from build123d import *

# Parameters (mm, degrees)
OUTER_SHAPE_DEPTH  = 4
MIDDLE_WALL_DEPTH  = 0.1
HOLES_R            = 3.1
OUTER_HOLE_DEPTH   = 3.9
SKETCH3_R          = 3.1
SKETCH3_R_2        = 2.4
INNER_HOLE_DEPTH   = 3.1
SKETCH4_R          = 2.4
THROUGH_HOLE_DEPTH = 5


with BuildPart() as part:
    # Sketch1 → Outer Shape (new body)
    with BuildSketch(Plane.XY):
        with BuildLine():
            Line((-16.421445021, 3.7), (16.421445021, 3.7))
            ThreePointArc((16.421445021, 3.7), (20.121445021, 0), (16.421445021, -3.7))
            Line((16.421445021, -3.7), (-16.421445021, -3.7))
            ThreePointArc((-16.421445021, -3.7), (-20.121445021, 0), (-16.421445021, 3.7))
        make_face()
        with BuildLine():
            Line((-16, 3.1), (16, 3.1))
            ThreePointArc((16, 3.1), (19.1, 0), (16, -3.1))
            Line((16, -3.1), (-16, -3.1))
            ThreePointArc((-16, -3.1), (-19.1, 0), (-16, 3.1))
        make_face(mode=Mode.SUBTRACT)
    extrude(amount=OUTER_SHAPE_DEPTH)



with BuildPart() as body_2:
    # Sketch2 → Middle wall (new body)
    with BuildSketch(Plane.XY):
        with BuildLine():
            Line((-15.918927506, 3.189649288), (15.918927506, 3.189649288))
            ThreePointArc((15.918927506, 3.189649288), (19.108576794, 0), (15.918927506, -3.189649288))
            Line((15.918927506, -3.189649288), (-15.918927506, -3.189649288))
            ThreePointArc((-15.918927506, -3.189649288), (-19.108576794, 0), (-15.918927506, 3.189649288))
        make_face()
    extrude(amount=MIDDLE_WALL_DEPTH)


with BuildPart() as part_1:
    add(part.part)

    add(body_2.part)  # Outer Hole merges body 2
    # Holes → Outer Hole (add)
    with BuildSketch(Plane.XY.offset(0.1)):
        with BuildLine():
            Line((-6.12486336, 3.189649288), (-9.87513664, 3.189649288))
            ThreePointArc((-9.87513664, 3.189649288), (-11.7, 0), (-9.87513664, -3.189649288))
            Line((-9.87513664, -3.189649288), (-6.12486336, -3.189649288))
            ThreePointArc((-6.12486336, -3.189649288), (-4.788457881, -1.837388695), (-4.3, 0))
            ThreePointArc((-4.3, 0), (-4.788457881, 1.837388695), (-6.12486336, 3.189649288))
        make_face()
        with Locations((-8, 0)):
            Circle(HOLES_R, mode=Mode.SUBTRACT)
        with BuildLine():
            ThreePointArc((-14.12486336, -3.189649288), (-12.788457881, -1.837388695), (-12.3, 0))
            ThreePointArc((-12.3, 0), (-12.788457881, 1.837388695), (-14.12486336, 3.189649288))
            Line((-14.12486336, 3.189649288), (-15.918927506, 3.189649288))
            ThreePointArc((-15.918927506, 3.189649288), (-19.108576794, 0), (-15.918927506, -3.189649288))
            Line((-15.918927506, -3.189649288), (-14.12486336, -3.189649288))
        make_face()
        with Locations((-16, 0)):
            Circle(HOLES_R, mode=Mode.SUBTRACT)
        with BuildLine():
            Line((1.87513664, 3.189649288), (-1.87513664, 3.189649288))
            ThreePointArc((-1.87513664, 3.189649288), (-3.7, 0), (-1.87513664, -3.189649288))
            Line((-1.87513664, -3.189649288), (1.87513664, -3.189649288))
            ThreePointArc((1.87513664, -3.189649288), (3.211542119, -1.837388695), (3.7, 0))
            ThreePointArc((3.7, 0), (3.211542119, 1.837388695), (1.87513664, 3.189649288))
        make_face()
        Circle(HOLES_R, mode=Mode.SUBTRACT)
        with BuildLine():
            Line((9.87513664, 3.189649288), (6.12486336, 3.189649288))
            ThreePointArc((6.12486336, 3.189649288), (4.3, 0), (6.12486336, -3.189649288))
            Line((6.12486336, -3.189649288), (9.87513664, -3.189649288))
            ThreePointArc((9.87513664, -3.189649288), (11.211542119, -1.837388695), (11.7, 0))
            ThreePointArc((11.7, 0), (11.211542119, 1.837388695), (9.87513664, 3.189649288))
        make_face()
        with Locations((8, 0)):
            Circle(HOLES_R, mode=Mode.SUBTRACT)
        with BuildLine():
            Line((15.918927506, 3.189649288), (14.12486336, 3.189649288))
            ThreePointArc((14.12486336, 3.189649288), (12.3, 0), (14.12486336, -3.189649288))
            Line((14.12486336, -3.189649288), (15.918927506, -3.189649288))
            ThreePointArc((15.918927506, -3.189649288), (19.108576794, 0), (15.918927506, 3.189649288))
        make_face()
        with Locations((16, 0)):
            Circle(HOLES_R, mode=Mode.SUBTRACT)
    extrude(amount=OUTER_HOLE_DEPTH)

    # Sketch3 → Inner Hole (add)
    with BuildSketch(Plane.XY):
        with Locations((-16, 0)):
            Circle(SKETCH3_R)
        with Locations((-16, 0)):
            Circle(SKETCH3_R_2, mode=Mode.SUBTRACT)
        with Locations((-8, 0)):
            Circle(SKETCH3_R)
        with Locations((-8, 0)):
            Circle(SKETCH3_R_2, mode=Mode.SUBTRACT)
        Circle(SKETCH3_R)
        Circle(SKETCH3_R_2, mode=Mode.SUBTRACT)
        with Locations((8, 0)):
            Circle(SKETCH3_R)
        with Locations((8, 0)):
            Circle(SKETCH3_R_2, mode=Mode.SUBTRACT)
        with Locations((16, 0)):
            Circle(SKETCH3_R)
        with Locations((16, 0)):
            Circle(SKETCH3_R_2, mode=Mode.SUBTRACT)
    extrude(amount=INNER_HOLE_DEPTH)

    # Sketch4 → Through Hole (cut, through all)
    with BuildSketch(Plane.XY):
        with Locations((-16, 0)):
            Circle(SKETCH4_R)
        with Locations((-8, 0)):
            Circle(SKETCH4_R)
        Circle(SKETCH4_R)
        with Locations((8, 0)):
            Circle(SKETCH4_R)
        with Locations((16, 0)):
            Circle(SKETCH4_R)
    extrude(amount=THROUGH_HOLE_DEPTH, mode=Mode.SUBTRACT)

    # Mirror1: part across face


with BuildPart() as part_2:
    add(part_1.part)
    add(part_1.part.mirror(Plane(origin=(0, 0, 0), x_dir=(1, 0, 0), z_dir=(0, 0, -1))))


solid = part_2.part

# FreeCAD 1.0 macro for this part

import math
import FreeCAD as App
import Part
import Sketcher
Q = App.Units.Quantity

doc = App.newDocument("Part")
body = doc.addObject("PartDesign::Body", "Body")

sketch1 = body.newObject("Sketcher::SketchObject", "Sketch")
sketch1.AttachmentSupport = (doc.getObject("XY_Plane"), [""])
sketch1.MapMode = "FlatFace"
sketch1.addGeometry([
    Part.LineSegment(App.Vector(16.4, 3.7, 0), App.Vector(-16.4, 3.7, 0)),
    Part.ArcOfCircle(Part.Circle(App.Vector(-16.4, 0, 0), App.Vector(0, 0, 1), 3.7), math.radians(90), math.radians(270)),
    Part.LineSegment(App.Vector(-16.4, -3.7, 0), App.Vector(16.4, -3.7, 0)),
    Part.ArcOfCircle(Part.Circle(App.Vector(16.4, 0, 0), App.Vector(0, 0, 1), 3.7), math.radians(-90), math.radians(90)),
    Part.LineSegment(App.Vector(-16, 3.1, 0), App.Vector(16, 3.1, 0)),
    Part.ArcOfCircle(Part.Circle(App.Vector(16, 0, 0), App.Vector(0, 0, 1), 3.1), math.radians(-90), math.radians(90)),
    Part.LineSegment(App.Vector(16, -3.1, 0), App.Vector(-16, -3.1, 0)),
    Part.ArcOfCircle(Part.Circle(App.Vector(-16, 0, 0), App.Vector(0, 0, 1), 3.1), math.radians(90), math.radians(270)),
], False)
sketch1.addConstraint([
    Sketcher.Constraint("Tangent", 0, 2, 1, 1),
    Sketcher.Constraint("Tangent", 1, 2, 2, 1),
    Sketcher.Constraint("Tangent", 2, 2, 3, 1),
    Sketcher.Constraint("Tangent", 3, 2, 0, 1),
    Sketcher.Constraint("Tangent", 4, 2, 5, 2),
    Sketcher.Constraint("Tangent", 5, 1, 6, 1),
    Sketcher.Constraint("Tangent", 6, 2, 7, 2),
    Sketcher.Constraint("Tangent", 7, 1, 4, 1),
    Sketcher.Constraint("Horizontal", 0),
    Sketcher.Constraint("Horizontal", 2),
    Sketcher.Constraint("Horizontal", 4),
    Sketcher.Constraint("Horizontal", 6),
    Sketcher.Constraint("Symmetric", 1, 3, 3, 3, -1, 1),
    Sketcher.Constraint("Symmetric", 5, 3, 7, 3, -1, 1),
    Sketcher.Constraint("Radius", 1, Q("3.7 mm")),
    Sketcher.Constraint("Radius", 5, Q("3.1 mm")),
    Sketcher.Constraint("DistanceX", 4, 1, 4, 2, Q("32 mm")),
    Sketcher.Constraint("DistanceX", 0, 2, 0, 1, Q("32.84289 mm")),
])
pad1 = body.newObject("PartDesign::Pad", "Pad")
pad1.Profile = sketch1
pad1.Length = 4
body2 = doc.addObject("PartDesign::Body", "Body001")

sketch2 = body2.newObject("Sketcher::SketchObject", "Sketch001")
sketch2.AttachmentSupport = (doc.getObject("XY_Plane001"), [""])
sketch2.MapMode = "FlatFace"
sketch2.addGeometry([
    Part.LineSegment(App.Vector(15.9, 3.2, 0), App.Vector(-15.9, 3.2, 0)),
    Part.ArcOfCircle(Part.Circle(App.Vector(-15.9, 0, 0), App.Vector(0, 0, 1), 3.2), math.radians(90), math.radians(270)),
    Part.LineSegment(App.Vector(-15.9, -3.2, 0), App.Vector(15.9, -3.2, 0)),
    Part.ArcOfCircle(Part.Circle(App.Vector(15.9, 0, 0), App.Vector(0, 0, 1), 3.2), math.radians(-90), math.radians(90)),
], False)
sketch2.addConstraint([
    Sketcher.Constraint("Tangent", 0, 2, 1, 1),
    Sketcher.Constraint("Tangent", 1, 2, 2, 1),
    Sketcher.Constraint("Tangent", 2, 2, 3, 1),
    Sketcher.Constraint("Tangent", 3, 2, 0, 1),
    Sketcher.Constraint("Horizontal", 0),
    Sketcher.Constraint("Horizontal", 2),
    Sketcher.Constraint("Symmetric", 1, 3, 3, 3, -1, 1),
    Sketcher.Constraint("Radius", 1, Q("3.189649 mm")),
    Sketcher.Constraint("DistanceX", 0, 2, 0, 1, Q("31.837855 mm")),
])
pad2 = body2.newObject("PartDesign::Pad", "Pad001")
pad2.Profile = sketch2
pad2.Length = 0.1
doc.recompute()

boolean = body.newObject("PartDesign::Boolean", "Boolean")
boolean.Type = "Fuse"
boolean.addObjects([body2])

sketch3 = body.newObject("Sketcher::SketchObject", "Sketch002")
sketch3.AttachmentSupport = (doc.getObject("XY_Plane"), [""])
sketch3.MapMode = "FlatFace"
sketch3.AttachmentOffset = App.Placement(App.Vector(0, 0, 0.1), App.Rotation())
sketch3.addGeometry([
    Part.LineSegment(App.Vector(-6.1, 3.2, 0), App.Vector(-9.9, 3.2, 0)),
    Part.ArcOfCircle(Part.Circle(App.Vector(-8, 0, 0), App.Vector(0, 0, 1), 3.7), math.radians(120), math.radians(240)),
    Part.LineSegment(App.Vector(-9.9, -3.2, 0), App.Vector(-6.1, -3.2, 0)),
    Part.ArcOfCircle(Part.Circle(App.Vector(-8, 0, 0), App.Vector(0, 0, 1), 3.7), math.radians(-60), math.radians(0)),
    Part.ArcOfCircle(Part.Circle(App.Vector(-8, 0, 0), App.Vector(0, 0, 1), 3.7), math.radians(0), math.radians(60)),
    Part.Circle(App.Vector(-8, 0, 0), App.Vector(0, 0, 1), 3.1),
    Part.ArcOfCircle(Part.Circle(App.Vector(-16, 0, 0), App.Vector(0, 0, 1), 3.7), math.radians(-60), math.radians(0)),
    Part.ArcOfCircle(Part.Circle(App.Vector(-16, 0, 0), App.Vector(0, 0, 1), 3.7), math.radians(0), math.radians(60)),
    Part.LineSegment(App.Vector(-14.1, 3.2, 0), App.Vector(-15.9, 3.2, 0)),
    Part.ArcOfCircle(Part.Circle(App.Vector(-15.9, 0, 0), App.Vector(0, 0, 1), 3.2), math.radians(90), math.radians(270)),
    Part.LineSegment(App.Vector(-15.9, -3.2, 0), App.Vector(-14.1, -3.2, 0)),
    Part.Circle(App.Vector(-16, 0, 0), App.Vector(0, 0, 1), 3.1),
    Part.LineSegment(App.Vector(1.9, 3.2, 0), App.Vector(-1.9, 3.2, 0)),
    Part.ArcOfCircle(Part.Circle(App.Vector(0, 0, 0), App.Vector(0, 0, 1), 3.7), math.radians(120), math.radians(240)),
    Part.LineSegment(App.Vector(-1.9, -3.2, 0), App.Vector(1.9, -3.2, 0)),
    Part.ArcOfCircle(Part.Circle(App.Vector(0, 0, 0), App.Vector(0, 0, 1), 3.7), math.radians(-60), math.radians(0)),
    Part.ArcOfCircle(Part.Circle(App.Vector(0, 0, 0), App.Vector(0, 0, 1), 3.7), math.radians(0), math.radians(60)),
    Part.Circle(App.Vector(0, 0, 0), App.Vector(0, 0, 1), 3.1),
    Part.LineSegment(App.Vector(9.9, 3.2, 0), App.Vector(6.1, 3.2, 0)),
    Part.ArcOfCircle(Part.Circle(App.Vector(8, 0, 0), App.Vector(0, 0, 1), 3.7), math.radians(120), math.radians(240)),
    Part.LineSegment(App.Vector(6.1, -3.2, 0), App.Vector(9.9, -3.2, 0)),
    Part.ArcOfCircle(Part.Circle(App.Vector(8, 0, 0), App.Vector(0, 0, 1), 3.7), math.radians(-60), math.radians(0)),
    Part.ArcOfCircle(Part.Circle(App.Vector(8, 0, 0), App.Vector(0, 0, 1), 3.7), math.radians(0), math.radians(60)),
    Part.Circle(App.Vector(8, 0, 0), App.Vector(0, 0, 1), 3.1),
    Part.LineSegment(App.Vector(15.9, 3.2, 0), App.Vector(14.1, 3.2, 0)),
    Part.ArcOfCircle(Part.Circle(App.Vector(16, 0, 0), App.Vector(0, 0, 1), 3.7), math.radians(120), math.radians(240)),
    Part.LineSegment(App.Vector(14.1, -3.2, 0), App.Vector(15.9, -3.2, 0)),
    Part.ArcOfCircle(Part.Circle(App.Vector(15.9, 0, 0), App.Vector(0, 0, 1), 3.2), math.radians(-90), math.radians(90)),
    Part.Circle(App.Vector(16, 0, 0), App.Vector(0, 0, 1), 3.1),
], False)
sketch3.addConstraint([
    Sketcher.Constraint("Coincident", 0, 2, 1, 1),
    Sketcher.Constraint("Coincident", 1, 2, 2, 1),
    Sketcher.Constraint("Coincident", 2, 2, 3, 1),
    Sketcher.Constraint("Tangent", 3, 2, 4, 1),
    Sketcher.Constraint("Coincident", 4, 2, 0, 1),
    Sketcher.Constraint("Tangent", 6, 2, 7, 1),
    Sketcher.Constraint("Coincident", 7, 2, 8, 1),
    Sketcher.Constraint("Tangent", 8, 2, 9, 1),
    Sketcher.Constraint("Tangent", 9, 2, 10, 1),
    Sketcher.Constraint("Coincident", 10, 2, 6, 1),
    Sketcher.Constraint("Coincident", 12, 2, 13, 1),
    Sketcher.Constraint("Coincident", 13, 2, 14, 1),
    Sketcher.Constraint("Coincident", 14, 2, 15, 1),
    Sketcher.Constraint("Tangent", 15, 2, 16, 1),
    Sketcher.Constraint("Coincident", 16, 2, 12, 1),
    Sketcher.Constraint("Coincident", 18, 2, 19, 1),
    Sketcher.Constraint("Coincident", 19, 2, 20, 1),
    Sketcher.Constraint("Coincident", 20, 2, 21, 1),
    Sketcher.Constraint("Tangent", 21, 2, 22, 1),
    Sketcher.Constraint("Coincident", 22, 2, 18, 1),
    Sketcher.Constraint("Coincident", 24, 2, 25, 1),
    Sketcher.Constraint("Coincident", 25, 2, 26, 1),
    Sketcher.Constraint("Tangent", 26, 2, 27, 1),
    Sketcher.Constraint("Tangent", 27, 2, 24, 1),
    Sketcher.Constraint("Horizontal", 0),
    Sketcher.Constraint("Horizontal", 2),
    Sketcher.Constraint("Horizontal", 8),
    Sketcher.Constraint("Horizontal", 10),
    Sketcher.Constraint("Horizontal", 12),
    Sketcher.Constraint("Horizontal", 14),
    Sketcher.Constraint("Horizontal", 18),
    Sketcher.Constraint("Horizontal", 20),
    Sketcher.Constraint("Horizontal", 24),
    Sketcher.Constraint("Horizontal", 26),
    Sketcher.Constraint("Coincident", 13, 3, -1, 1),
    Sketcher.Constraint("Coincident", 15, 3, -1, 1),
    Sketcher.Constraint("Coincident", 17, 3, -1, 1),
    Sketcher.Constraint("Coincident", 3, 3, 1, 3),
    Sketcher.Constraint("Coincident", 5, 3, 1, 3),
    Sketcher.Constraint("Coincident", 11, 3, 6, 3),
    Sketcher.Constraint("Coincident", 21, 3, 19, 3),
    Sketcher.Constraint("Coincident", 23, 3, 19, 3),
    Sketcher.Constraint("Coincident", 28, 3, 25, 3),
    Sketcher.Constraint("Equal", 1, 3),
    Sketcher.Constraint("Equal", 3, 4),
    Sketcher.Constraint("Equal", 4, 6),
    Sketcher.Constraint("Equal", 6, 7),
    Sketcher.Constraint("Equal", 5, 11),
    Sketcher.Constraint("Equal", 7, 13),
    Sketcher.Constraint("Equal", 13, 15),
    Sketcher.Constraint("Equal", 15, 16),
    Sketcher.Constraint("Equal", 11, 17),
    Sketcher.Constraint("Equal", 16, 19),
    Sketcher.Constraint("Equal", 19, 21),
    Sketcher.Constraint("Equal", 21, 22),
    Sketcher.Constraint("Equal", 17, 23),
    Sketcher.Constraint("Equal", 22, 25),
    Sketcher.Constraint("Equal", 9, 27),
    Sketcher.Constraint("Equal", 23, 28),
    Sketcher.Constraint("Symmetric", 1, 3, 19, 3, -1, 1),
    Sketcher.Constraint("Symmetric", 6, 3, 25, 3, -1, 1),
    Sketcher.Constraint("Symmetric", 9, 3, 27, 3, -1, 1),
    Sketcher.Constraint("Symmetric", 4, 2, 18, 2, -2),
    Sketcher.Constraint("Symmetric", 7, 2, 24, 2, -2),
    Sketcher.Constraint("PointOnObject", 3, 2, -1),
    Sketcher.Constraint("PointOnObject", 6, 2, -1),
    Sketcher.Constraint("PointOnObject", 15, 2, -1),
    Sketcher.Constraint("PointOnObject", 21, 2, -1),
    Sketcher.Constraint("Horizontal", 4, 2, 7, 2),
    Sketcher.Constraint("Horizontal", 2, 2, 9, 2),
    Sketcher.Constraint("Horizontal", 8, 2, 12, 2),
    Sketcher.Constraint("Horizontal", 10, 2, 13, 2),
    Sketcher.Constraint("Horizontal", 14, 2, 19, 2),
    Sketcher.Constraint("Diameter", 5, Q("6.2 mm")),
    Sketcher.Constraint("Radius", 1, Q("3.7 mm")),
    Sketcher.Constraint("DistanceX", 1, 3, -1, 1, Q("8 mm")),
    Sketcher.Constraint("DistanceX", 6, 3, -1, 1, Q("16 mm")),
    Sketcher.Constraint("Radius", 9, Q("3.189649 mm")),
    Sketcher.Constraint("DistanceX", 8, 2, 8, 1, Q("1.794064 mm")),
])
pad3 = body.newObject("PartDesign::Pad", "Pad002")
pad3.Profile = sketch3
pad3.Length = 3.9

sketch4 = body.newObject("Sketcher::SketchObject", "Sketch003")
sketch4.AttachmentSupport = (doc.getObject("XY_Plane"), [""])
sketch4.MapMode = "FlatFace"
sketch4.addGeometry([
    Part.Circle(App.Vector(-16, 0, 0), App.Vector(0, 0, 1), 3.1),
    Part.Circle(App.Vector(-16, 0, 0), App.Vector(0, 0, 1), 2.4),
    Part.Circle(App.Vector(-8, 0, 0), App.Vector(0, 0, 1), 3.1),
    Part.Circle(App.Vector(-8, 0, 0), App.Vector(0, 0, 1), 2.4),
    Part.Circle(App.Vector(0, 0, 0), App.Vector(0, 0, 1), 3.1),
    Part.Circle(App.Vector(0, 0, 0), App.Vector(0, 0, 1), 2.4),
    Part.Circle(App.Vector(8, 0, 0), App.Vector(0, 0, 1), 3.1),
    Part.Circle(App.Vector(8, 0, 0), App.Vector(0, 0, 1), 2.4),
    Part.Circle(App.Vector(16, 0, 0), App.Vector(0, 0, 1), 3.1),
    Part.Circle(App.Vector(16, 0, 0), App.Vector(0, 0, 1), 2.4),
], False)
sketch4.addConstraint([
    Sketcher.Constraint("Coincident", 4, 3, -1, 1),
    Sketcher.Constraint("Coincident", 5, 3, -1, 1),
    Sketcher.Constraint("Coincident", 1, 3, 0, 3),
    Sketcher.Constraint("Coincident", 3, 3, 2, 3),
    Sketcher.Constraint("Coincident", 7, 3, 6, 3),
    Sketcher.Constraint("Coincident", 9, 3, 8, 3),
    Sketcher.Constraint("Equal", 0, 2),
    Sketcher.Constraint("Equal", 1, 3),
    Sketcher.Constraint("Equal", 2, 4),
    Sketcher.Constraint("Equal", 3, 5),
    Sketcher.Constraint("Equal", 4, 6),
    Sketcher.Constraint("Equal", 5, 7),
    Sketcher.Constraint("Equal", 6, 8),
    Sketcher.Constraint("Equal", 7, 9),
    Sketcher.Constraint("Symmetric", 2, 3, 6, 3, -1, 1),
    Sketcher.Constraint("Symmetric", 0, 3, 8, 3, -1, 1),
    Sketcher.Constraint("PointOnObject", 0, 3, -1),
    Sketcher.Constraint("PointOnObject", 2, 3, -1),
    Sketcher.Constraint("Diameter", 0, Q("6.2 mm")),
    Sketcher.Constraint("Diameter", 1, Q("4.8 mm")),
    Sketcher.Constraint("DistanceX", 0, 3, -1, 1, Q("16 mm")),
    Sketcher.Constraint("DistanceX", 2, 3, -1, 1, Q("8 mm")),
])
pad4 = body.newObject("PartDesign::Pad", "Pad003")
pad4.Profile = sketch4
pad4.Length = 3.1

sketch5 = body.newObject("Sketcher::SketchObject", "Sketch004")
sketch5.AttachmentSupport = (doc.getObject("XY_Plane"), [""])
sketch5.MapMode = "FlatFace"
sketch5.addGeometry([
    Part.Circle(App.Vector(-16, 0, 0), App.Vector(0, 0, 1), 2.4),
    Part.Circle(App.Vector(-8, 0, 0), App.Vector(0, 0, 1), 2.4),
    Part.Circle(App.Vector(0, 0, 0), App.Vector(0, 0, 1), 2.4),
    Part.Circle(App.Vector(8, 0, 0), App.Vector(0, 0, 1), 2.4),
    Part.Circle(App.Vector(16, 0, 0), App.Vector(0, 0, 1), 2.4),
], False)
sketch5.addConstraint([
    Sketcher.Constraint("Coincident", 2, 3, -1, 1),
    Sketcher.Constraint("Equal", 0, 1),
    Sketcher.Constraint("Equal", 1, 2),
    Sketcher.Constraint("Equal", 2, 3),
    Sketcher.Constraint("Equal", 3, 4),
    Sketcher.Constraint("Symmetric", 1, 3, 3, 3, -1, 1),
    Sketcher.Constraint("Symmetric", 0, 3, 4, 3, -1, 1),
    Sketcher.Constraint("PointOnObject", 0, 3, -1),
    Sketcher.Constraint("PointOnObject", 1, 3, -1),
    Sketcher.Constraint("Diameter", 0, Q("4.8 mm")),
    Sketcher.Constraint("DistanceX", 0, 3, -1, 1, Q("16 mm")),
    Sketcher.Constraint("DistanceX", 1, 3, -1, 1, Q("8 mm")),
])
pocket1 = body.newObject("PartDesign::Pocket", "Pocket")
pocket1.Profile = sketch5
pocket1.Type = "ThroughAll"
pocket1.Reversed = True
body3 = doc.addObject("PartDesign::Body", "Body002")
doc.recompute()

body3.BaseFeature = body
doc.recompute()

mirroring = doc.addObject("Part::Mirroring", "Mirroring")
mirroring.Source = body
mirroring.Base = App.Vector(0, 0, 0)
mirroring.Normal = App.Vector(0, 0, -1)
body4 = doc.addObject("PartDesign::Body", "Body003")
body4.BaseFeature = mirroring
boolean2 = body3.newObject("PartDesign::Boolean", "Boolean001")
boolean2.Type = "Fuse"
boolean2.addObjects([body4])
doc.recompute()
mirroring.Visibility = False

doc.recompute()
